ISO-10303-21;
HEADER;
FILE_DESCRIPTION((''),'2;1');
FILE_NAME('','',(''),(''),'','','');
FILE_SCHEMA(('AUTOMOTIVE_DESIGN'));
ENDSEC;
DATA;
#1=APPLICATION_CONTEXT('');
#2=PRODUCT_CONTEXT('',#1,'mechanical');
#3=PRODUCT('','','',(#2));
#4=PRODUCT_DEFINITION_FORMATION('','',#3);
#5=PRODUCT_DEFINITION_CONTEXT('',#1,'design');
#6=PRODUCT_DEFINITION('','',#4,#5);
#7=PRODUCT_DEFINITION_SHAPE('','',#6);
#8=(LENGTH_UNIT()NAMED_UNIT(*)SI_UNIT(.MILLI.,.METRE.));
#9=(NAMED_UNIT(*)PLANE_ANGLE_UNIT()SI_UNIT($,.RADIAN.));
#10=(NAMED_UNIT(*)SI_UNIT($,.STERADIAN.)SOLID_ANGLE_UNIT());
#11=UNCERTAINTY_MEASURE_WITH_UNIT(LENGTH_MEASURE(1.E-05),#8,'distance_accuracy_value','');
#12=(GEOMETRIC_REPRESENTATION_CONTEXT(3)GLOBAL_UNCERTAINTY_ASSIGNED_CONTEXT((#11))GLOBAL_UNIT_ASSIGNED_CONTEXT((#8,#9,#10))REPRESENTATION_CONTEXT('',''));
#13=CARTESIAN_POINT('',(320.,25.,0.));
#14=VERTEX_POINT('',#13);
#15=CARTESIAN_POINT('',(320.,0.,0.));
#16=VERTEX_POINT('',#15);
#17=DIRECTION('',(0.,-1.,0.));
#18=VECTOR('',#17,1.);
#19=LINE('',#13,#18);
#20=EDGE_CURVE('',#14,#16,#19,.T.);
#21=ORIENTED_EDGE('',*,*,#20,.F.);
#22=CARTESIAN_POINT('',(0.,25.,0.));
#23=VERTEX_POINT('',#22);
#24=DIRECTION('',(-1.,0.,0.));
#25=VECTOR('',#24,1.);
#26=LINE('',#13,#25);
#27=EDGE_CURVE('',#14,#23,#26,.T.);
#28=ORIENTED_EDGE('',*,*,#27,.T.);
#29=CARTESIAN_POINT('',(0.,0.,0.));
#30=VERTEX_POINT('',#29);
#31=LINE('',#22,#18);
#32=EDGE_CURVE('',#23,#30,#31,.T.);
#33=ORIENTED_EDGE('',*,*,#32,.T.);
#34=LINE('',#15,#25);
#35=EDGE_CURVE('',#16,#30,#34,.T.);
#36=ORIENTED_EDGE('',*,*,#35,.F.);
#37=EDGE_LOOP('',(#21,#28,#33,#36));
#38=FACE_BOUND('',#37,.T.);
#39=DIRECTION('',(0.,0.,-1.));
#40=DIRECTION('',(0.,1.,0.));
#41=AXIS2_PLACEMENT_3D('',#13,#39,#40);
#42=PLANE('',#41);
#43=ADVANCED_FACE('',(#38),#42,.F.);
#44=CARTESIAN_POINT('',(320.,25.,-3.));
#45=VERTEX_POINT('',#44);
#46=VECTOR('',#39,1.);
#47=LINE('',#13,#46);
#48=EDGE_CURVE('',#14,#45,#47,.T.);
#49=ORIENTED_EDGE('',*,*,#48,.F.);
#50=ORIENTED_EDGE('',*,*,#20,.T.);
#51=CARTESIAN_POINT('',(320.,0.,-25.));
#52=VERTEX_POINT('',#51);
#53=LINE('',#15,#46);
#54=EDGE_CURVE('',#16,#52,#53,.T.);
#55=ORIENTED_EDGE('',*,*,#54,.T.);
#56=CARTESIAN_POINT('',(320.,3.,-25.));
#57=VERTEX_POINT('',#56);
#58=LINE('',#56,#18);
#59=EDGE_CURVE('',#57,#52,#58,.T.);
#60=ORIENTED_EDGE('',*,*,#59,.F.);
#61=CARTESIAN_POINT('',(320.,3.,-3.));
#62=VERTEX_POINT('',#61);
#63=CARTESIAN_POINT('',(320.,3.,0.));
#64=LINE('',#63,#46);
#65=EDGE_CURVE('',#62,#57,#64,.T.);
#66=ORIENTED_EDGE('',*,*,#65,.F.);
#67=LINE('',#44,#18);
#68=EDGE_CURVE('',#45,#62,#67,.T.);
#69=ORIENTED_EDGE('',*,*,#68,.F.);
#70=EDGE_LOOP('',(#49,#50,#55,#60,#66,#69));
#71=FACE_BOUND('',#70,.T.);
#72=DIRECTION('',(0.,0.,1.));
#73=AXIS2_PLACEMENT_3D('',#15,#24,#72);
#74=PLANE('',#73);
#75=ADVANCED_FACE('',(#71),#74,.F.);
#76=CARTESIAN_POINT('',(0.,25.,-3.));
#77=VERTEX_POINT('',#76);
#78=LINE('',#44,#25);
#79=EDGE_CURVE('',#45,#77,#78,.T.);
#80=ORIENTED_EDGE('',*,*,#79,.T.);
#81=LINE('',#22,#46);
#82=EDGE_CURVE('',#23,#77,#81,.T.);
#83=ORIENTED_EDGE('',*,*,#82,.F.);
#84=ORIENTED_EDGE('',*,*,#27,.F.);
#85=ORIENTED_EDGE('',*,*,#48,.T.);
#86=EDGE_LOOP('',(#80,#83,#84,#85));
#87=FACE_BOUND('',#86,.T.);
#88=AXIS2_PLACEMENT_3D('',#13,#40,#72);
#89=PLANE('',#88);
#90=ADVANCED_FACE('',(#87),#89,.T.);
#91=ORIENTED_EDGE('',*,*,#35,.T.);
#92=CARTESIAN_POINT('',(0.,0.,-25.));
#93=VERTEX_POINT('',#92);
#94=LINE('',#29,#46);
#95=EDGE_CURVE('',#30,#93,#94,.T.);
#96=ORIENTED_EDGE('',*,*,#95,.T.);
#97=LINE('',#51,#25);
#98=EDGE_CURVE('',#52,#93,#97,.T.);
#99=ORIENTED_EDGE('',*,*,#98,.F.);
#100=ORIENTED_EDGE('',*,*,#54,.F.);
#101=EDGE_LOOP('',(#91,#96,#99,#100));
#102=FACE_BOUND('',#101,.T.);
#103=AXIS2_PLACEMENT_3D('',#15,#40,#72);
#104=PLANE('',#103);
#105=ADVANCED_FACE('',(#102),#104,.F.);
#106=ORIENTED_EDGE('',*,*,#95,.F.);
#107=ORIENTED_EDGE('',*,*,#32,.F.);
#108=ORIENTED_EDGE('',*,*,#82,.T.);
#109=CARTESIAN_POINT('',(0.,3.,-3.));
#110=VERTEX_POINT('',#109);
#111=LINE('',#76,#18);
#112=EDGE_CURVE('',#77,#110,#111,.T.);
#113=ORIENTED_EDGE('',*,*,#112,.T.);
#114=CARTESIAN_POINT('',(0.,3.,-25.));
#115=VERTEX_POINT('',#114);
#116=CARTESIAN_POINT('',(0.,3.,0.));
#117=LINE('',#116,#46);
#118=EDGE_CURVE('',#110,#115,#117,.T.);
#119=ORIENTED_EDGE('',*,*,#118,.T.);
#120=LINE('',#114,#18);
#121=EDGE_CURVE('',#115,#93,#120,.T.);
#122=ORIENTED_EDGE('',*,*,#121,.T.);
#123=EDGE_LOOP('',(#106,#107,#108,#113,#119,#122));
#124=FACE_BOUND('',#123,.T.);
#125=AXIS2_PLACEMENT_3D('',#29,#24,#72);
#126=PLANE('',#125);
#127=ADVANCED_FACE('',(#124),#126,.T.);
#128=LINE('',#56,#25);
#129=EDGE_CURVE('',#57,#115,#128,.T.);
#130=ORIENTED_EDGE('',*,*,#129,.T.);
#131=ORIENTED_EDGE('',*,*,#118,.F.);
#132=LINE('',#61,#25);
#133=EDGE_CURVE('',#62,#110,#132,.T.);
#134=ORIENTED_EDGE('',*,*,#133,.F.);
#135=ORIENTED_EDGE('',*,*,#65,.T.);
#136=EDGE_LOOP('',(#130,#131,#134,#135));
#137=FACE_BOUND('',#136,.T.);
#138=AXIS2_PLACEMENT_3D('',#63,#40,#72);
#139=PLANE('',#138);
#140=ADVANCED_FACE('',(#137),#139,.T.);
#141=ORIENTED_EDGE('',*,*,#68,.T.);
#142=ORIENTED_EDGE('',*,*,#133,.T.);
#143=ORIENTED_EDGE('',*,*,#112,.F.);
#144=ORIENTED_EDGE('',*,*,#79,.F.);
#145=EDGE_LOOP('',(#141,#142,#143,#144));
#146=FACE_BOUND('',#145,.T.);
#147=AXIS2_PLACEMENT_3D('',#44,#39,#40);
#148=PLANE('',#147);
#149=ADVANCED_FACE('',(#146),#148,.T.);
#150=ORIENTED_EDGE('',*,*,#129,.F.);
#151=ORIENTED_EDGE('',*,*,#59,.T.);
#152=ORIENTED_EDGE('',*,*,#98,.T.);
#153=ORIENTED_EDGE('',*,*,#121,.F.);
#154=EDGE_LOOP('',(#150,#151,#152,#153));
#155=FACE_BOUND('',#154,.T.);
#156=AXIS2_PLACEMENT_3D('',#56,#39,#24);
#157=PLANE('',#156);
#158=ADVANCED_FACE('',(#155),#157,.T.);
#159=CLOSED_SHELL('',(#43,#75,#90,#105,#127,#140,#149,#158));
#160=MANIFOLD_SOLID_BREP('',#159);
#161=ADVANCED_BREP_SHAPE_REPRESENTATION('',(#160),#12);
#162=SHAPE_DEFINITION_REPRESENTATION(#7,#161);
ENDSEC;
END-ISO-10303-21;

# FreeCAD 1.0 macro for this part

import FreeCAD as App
import Part
import Sketcher


def add_polygon(sketch, points):
    """Adds a closed chain of lines whose ends are joined by coincident constraints."""
    first, n = sketch.GeometryCount, len(points)
    for a, b in zip(points, points[1:] + points[:1]):
        sketch.addGeometry(Part.LineSegment(App.Vector(*a, 0), App.Vector(*b, 0)), False)
    for i in range(n):
        sketch.addConstraint(Sketcher.Constraint("Coincident", first + i, 2, first + (i + 1) % n, 1))

doc = App.newDocument("Part")
body = doc.addObject("PartDesign::Body", "Body")

sketch1 = body.newObject("Sketcher::SketchObject", "Sketch")
sketch1.AttachmentSupport = (doc.getObject("YZ_Plane"), [""])
sketch1.MapMode = "FlatFace"
add_polygon(sketch1, [(25, 0), (0, 0), (0, -25), (3, -25), (3, -3), (25, -3)])
sketch1.addConstraint([
    Sketcher.Constraint("Horizontal", 0),
    Sketcher.Constraint("Vertical", 1),
    Sketcher.Constraint("Horizontal", 2),
    Sketcher.Constraint("Vertical", 3),
    Sketcher.Constraint("Horizontal", 4),
    Sketcher.Constraint("Vertical", 5),
    Sketcher.Constraint("Coincident", 0, 2, -1, 1),
    Sketcher.Constraint("Equal", 0, 1),
    Sketcher.Constraint("Equal", 4, 3),
    Sketcher.Constraint("DistanceX", 0, 2, 0, 1, 25.0),
    Sketcher.Constraint("DistanceX", 2, 1, 2, 2, 3.0),
])
pad1 = body.newObject("PartDesign::Pad", "Pad")
pad1.Profile = sketch1
pad1.Length = 320

doc.recompute()
